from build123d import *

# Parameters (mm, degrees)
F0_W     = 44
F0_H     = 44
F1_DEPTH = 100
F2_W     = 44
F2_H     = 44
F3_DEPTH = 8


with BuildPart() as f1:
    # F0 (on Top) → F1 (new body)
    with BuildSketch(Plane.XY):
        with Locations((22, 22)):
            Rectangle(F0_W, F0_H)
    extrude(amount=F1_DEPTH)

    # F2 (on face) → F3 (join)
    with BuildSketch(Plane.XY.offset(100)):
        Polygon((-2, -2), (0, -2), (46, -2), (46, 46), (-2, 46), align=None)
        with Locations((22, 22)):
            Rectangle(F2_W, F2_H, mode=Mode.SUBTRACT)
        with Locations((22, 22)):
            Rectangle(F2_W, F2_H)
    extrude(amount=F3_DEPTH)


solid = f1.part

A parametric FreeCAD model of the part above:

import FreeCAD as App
import Part
import Sketcher
from FreeCAD import Vector
Q = App.Units.Quantity

doc = App.newDocument("Part")
params = doc.addObject("Spreadsheet::Sheet", "Params")
for row, (alias, value) in enumerate([
    ("sketch1_width", "44 mm"),
    ("pad1_length", "100 mm"),
    ("sketch2_width", "48 mm"),
    ("pad2_length", "8 mm"),
], start=1):
    params.set(f"A{row}", alias)
    params.set(f"B{row}", "=" + value)
    params.setAlias(f"B{row}", alias)

body = doc.addObject("PartDesign::Body", "Body")

# Sketch on XY plane
sketch1 = body.newObject("Sketcher::SketchObject", "Sketch")
sketch1.AttachmentSupport = (doc.getObject("XY_Plane"), [""])
sketch1.MapMode = "FlatFace"
sketch1.addGeometry([
    Part.LineSegment(Vector(0, 44, 0), Vector(0, 0, 0)),
    Part.LineSegment(Vector(0, 0, 0), Vector(44, 0, 0)),
    Part.LineSegment(Vector(44, 0, 0), Vector(44, 44, 0)),
    Part.LineSegment(Vector(44, 44, 0), Vector(0, 44, 0)),
], False)
sketch1.addConstraint([
    Sketcher.Constraint("Coincident", 0, 2, 1, 1),
    Sketcher.Constraint("Coincident", 1, 2, 2, 1),
    Sketcher.Constraint("Coincident", 2, 2, 3, 1),
    Sketcher.Constraint("Coincident", 3, 2, 0, 1),
    Sketcher.Constraint("Vertical", 0),
    Sketcher.Constraint("Horizontal", 1),
    Sketcher.Constraint("Vertical", 2),
    Sketcher.Constraint("Horizontal", 3),
    Sketcher.Constraint("Coincident", 0, 2, -1, 1),
    Sketcher.Constraint("Equal", 3, 0),
    Sketcher.Constraint("DistanceX", 1, 1, 1, 2, Q("44 mm")),
])
sketch1.setExpression("Constraints[10]", "Params.sketch1_width")
pad1 = body.newObject("PartDesign::Pad", "Pad")
pad1.Profile = sketch1
pad1.setExpression("Length", "Params.pad1_length")

# Sketch on XY plane
sketch2 = body.newObject("Sketcher::SketchObject", "Sketch001")
sketch2.AttachmentSupport = (doc.getObject("XY_Plane"), [""])
sketch2.MapMode = "FlatFace"
sketch2.AttachmentOffset = App.Placement(Vector(0, 0, 100), App.Rotation())
sketch2.addGeometry([
    Part.LineSegment(Vector(-2, -2, 0), Vector(46, -2, 0)),
    Part.LineSegment(Vector(46, -2, 0), Vector(46, 46, 0)),
    Part.LineSegment(Vector(46, 46, 0), Vector(-2, 46, 0)),
    Part.LineSegment(Vector(-2, 46, 0), Vector(-2, -2, 0)),
], False)
sketch2.addConstraint([
    Sketcher.Constraint("Coincident", 0, 2, 1, 1),
    Sketcher.Constraint("Coincident", 1, 2, 2, 1),
    Sketcher.Constraint("Coincident", 2, 2, 3, 1),
    Sketcher.Constraint("Coincident", 3, 2, 0, 1),
    Sketcher.Constraint("Horizontal", 0),
    Sketcher.Constraint("Vertical", 1),
    Sketcher.Constraint("Horizontal", 2),
    Sketcher.Constraint("Vertical", 3),
    Sketcher.Constraint("Equal", 2, 1),
    Sketcher.Constraint("DistanceX", 0, 1, 0, 2, Q("48 mm")),
    Sketcher.Constraint("DistanceX", -1, 1, 0, 2, Q("46 mm")),
    Sketcher.Constraint("DistanceY", 0, 2, -1, 1, Q("2 mm")),
])
sketch2.setExpression("Constraints[9]", "Params.sketch2_width")
pad2 = body.newObject("PartDesign::Pad", "Pad001")
pad2.Profile = sketch2
pad2.setExpression("Length", "Params.pad2_length")

doc.recompute()
